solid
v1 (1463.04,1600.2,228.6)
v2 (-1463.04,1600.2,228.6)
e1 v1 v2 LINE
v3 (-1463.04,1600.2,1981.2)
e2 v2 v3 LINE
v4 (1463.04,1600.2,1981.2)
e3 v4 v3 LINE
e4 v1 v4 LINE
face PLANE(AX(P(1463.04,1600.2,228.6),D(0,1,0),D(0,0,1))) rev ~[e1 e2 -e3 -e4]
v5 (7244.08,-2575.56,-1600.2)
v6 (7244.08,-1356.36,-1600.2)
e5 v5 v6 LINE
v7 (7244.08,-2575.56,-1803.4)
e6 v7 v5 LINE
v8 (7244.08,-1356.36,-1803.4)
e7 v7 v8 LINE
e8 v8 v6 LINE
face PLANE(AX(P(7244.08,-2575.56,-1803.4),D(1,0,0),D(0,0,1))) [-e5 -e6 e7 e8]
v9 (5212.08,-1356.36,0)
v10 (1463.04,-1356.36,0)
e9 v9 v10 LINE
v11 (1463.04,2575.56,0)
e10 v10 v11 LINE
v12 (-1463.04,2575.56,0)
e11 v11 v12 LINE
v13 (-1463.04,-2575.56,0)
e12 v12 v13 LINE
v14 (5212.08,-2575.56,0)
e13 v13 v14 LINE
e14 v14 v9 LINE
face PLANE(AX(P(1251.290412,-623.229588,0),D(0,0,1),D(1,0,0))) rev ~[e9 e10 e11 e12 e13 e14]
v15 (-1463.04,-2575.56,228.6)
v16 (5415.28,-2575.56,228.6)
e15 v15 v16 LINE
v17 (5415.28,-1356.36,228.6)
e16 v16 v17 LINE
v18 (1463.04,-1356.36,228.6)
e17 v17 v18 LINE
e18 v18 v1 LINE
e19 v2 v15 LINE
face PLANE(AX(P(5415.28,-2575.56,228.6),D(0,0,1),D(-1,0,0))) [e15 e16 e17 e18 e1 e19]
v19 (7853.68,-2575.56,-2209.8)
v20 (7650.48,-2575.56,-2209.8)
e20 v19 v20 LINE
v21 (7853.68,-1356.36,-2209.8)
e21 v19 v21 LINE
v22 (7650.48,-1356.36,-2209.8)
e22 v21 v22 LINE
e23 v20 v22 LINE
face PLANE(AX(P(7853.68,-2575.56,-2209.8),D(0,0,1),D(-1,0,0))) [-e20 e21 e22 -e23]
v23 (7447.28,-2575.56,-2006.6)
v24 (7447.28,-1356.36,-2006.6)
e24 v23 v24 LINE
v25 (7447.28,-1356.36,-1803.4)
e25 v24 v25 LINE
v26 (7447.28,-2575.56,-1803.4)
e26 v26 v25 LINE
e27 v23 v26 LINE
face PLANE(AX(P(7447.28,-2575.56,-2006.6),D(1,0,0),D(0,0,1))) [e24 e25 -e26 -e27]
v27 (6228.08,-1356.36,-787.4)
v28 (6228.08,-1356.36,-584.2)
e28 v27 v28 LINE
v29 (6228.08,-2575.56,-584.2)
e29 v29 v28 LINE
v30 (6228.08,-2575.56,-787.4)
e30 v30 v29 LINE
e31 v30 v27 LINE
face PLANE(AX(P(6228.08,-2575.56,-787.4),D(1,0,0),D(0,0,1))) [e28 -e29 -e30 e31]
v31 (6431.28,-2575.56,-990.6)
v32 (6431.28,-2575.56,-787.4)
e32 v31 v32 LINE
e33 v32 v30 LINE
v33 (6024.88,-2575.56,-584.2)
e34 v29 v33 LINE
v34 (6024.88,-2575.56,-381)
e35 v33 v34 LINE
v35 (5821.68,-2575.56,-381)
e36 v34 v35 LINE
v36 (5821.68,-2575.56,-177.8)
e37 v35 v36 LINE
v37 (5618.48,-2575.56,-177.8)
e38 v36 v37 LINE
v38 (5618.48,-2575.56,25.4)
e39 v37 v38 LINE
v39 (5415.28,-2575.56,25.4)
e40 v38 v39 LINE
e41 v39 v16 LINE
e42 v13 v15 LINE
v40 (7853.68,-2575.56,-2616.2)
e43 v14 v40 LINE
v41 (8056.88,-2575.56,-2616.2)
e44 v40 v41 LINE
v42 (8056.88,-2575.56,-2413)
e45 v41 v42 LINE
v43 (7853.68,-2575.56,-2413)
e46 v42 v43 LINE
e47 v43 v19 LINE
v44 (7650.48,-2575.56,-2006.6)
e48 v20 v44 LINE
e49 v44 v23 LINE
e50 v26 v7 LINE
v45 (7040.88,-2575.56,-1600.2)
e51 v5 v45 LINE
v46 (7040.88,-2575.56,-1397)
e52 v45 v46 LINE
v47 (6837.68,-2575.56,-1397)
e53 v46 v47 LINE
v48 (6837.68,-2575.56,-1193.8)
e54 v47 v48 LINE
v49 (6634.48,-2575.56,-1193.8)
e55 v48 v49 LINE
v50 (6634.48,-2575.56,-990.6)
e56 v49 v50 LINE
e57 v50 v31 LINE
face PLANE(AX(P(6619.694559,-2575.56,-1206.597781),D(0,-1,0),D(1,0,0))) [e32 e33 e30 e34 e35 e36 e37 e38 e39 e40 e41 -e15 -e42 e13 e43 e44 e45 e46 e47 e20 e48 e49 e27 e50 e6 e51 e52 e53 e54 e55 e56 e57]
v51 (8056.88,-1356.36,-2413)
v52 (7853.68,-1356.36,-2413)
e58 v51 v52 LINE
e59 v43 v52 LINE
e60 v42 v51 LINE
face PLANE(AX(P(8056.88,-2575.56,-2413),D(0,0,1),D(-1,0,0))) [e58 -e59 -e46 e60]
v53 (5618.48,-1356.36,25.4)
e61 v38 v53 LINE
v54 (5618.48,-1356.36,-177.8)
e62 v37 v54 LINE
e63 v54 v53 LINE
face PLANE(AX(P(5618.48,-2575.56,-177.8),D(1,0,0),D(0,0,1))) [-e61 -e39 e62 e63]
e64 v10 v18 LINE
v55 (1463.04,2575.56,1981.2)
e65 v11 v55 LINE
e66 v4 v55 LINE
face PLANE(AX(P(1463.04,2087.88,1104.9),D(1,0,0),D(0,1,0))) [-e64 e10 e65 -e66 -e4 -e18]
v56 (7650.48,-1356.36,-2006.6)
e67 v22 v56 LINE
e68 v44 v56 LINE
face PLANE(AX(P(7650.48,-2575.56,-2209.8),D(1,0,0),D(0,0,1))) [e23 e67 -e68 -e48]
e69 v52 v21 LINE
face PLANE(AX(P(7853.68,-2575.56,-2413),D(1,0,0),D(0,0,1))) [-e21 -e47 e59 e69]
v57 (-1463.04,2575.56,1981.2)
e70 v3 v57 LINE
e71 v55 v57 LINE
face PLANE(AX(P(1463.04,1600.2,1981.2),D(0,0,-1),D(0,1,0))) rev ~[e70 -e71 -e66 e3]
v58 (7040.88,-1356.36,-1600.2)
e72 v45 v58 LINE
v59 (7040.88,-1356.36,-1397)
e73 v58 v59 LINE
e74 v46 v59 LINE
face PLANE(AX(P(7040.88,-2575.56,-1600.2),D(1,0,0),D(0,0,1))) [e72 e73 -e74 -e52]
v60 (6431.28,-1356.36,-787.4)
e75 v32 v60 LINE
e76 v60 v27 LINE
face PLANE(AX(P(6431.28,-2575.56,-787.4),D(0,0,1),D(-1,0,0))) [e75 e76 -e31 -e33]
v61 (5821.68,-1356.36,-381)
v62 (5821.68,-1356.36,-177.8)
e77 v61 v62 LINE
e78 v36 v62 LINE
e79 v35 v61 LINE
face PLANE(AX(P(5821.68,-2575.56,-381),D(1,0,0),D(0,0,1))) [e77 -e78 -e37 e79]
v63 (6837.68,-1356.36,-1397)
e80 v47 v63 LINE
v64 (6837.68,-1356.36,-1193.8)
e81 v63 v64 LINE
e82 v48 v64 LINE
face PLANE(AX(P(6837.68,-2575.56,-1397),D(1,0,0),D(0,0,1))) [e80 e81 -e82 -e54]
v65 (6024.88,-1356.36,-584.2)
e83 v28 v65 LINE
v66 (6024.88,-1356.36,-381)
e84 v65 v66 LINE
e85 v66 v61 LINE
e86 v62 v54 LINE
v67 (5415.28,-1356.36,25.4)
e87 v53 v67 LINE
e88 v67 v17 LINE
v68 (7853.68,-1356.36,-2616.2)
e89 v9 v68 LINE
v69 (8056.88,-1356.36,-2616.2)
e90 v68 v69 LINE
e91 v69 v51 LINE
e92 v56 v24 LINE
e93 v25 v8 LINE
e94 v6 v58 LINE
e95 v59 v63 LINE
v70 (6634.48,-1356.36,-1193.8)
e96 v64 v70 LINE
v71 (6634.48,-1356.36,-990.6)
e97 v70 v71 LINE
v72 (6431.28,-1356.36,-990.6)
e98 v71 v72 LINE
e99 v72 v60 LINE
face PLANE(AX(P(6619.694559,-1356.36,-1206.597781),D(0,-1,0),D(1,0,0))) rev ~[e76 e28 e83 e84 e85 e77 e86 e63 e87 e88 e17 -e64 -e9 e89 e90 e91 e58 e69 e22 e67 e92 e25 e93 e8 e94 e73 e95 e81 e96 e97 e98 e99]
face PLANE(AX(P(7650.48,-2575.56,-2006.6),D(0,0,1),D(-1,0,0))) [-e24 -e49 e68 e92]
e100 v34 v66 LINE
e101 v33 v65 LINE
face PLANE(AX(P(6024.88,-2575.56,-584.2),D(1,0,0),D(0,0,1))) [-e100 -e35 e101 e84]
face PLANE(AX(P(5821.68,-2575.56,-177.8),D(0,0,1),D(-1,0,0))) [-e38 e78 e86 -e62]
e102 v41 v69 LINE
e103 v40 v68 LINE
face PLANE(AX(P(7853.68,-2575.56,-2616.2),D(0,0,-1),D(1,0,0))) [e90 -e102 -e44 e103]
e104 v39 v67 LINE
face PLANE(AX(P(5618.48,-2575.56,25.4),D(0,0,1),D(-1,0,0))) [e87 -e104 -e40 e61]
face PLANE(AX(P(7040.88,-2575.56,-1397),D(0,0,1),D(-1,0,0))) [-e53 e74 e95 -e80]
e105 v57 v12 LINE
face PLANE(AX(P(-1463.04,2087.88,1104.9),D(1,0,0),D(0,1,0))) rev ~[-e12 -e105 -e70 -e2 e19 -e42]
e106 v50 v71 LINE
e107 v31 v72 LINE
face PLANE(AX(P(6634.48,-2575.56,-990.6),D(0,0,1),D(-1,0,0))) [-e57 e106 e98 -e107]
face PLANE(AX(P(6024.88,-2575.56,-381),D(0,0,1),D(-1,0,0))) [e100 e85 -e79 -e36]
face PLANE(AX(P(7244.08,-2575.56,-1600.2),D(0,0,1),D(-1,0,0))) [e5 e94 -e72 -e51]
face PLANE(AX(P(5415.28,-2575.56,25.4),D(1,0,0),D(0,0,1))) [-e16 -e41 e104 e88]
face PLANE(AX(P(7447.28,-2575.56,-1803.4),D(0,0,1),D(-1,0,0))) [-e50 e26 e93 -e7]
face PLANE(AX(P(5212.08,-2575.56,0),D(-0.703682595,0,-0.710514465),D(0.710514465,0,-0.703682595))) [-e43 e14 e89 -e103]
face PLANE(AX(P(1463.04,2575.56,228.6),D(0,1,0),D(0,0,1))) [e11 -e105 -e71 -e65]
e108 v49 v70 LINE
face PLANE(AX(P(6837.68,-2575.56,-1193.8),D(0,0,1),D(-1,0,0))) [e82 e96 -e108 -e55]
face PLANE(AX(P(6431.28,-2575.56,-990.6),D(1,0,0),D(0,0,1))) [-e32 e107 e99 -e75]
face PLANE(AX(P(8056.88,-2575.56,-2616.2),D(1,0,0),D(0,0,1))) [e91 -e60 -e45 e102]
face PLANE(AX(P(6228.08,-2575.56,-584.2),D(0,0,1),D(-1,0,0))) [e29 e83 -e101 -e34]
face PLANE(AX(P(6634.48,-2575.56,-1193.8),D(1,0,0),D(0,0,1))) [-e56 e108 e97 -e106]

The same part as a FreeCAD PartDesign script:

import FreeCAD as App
import Part
import Sketcher
from FreeCAD import Vector
Q = App.Units.Quantity


def add_polygon(sketch, points):
    """Adds a closed chain of lines whose ends are joined by coincident constraints."""
    first, n = sketch.GeometryCount, len(points)
    for a, b in zip(points, points[1:] + points[:1]):
        sketch.addGeometry(Part.LineSegment(App.Vector(*a, 0), App.Vector(*b, 0)), False)
    for i in range(n):
        sketch.addConstraint(Sketcher.Constraint("Coincident", first + i, 2, first + (i + 1) % n, 1))

doc = App.newDocument("Part")
body = doc.addObject("PartDesign::Body", "Body")

sketch1 = body.newObject("Sketcher::SketchObject", "Sketch")
sketch1.AttachmentSupport = (doc.getObject("XY_Plane"), [""])
sketch1.MapMode = "FlatFace"
add_polygon(sketch1, [(-1463, -2576), (5212, -2576), (5212, -1356), (1463, -1356), (1463, 2576), (-1463, 2576)])
sketch1.addConstraint(Sketcher.Constraint("Horizontal", 0))
sketch1.addConstraint(Sketcher.Constraint("Vertical", 1))
sketch1.addConstraint(Sketcher.Constraint("Horizontal", 2))
sketch1.addConstraint(Sketcher.Constraint("Vertical", 3))
sketch1.addConstraint(Sketcher.Constraint("Horizontal", 4))
sketch1.addConstraint(Sketcher.Constraint("Vertical", 5))
sketch1.addConstraint(Sketcher.Constraint("Symmetric", 3, 2, 5, 2, -1, 1))
sketch1.addConstraint(Sketcher.Constraint("DistanceY", 1, 1, 1, 2, Q("48 in")))
sketch1.addConstraint(Sketcher.Constraint("DistanceX", 0, 1, 0, 2, Q("262.8 in")))
sketch1.addConstraint(Sketcher.Constraint("DistanceX", 2, 2, 2, 1, Q("147.6 in")))
sketch1.addConstraint(Sketcher.Constraint("DistanceY", 3, 1, 3, 2, Q("154.8 in")))
pad1 = body.newObject("PartDesign::Pad", "Pad")
pad1.Profile = sketch1
pad1.Length = Q("9 in")

sketch2 = body.newObject("Sketcher::SketchObject", "Sketch001")
sketch2.AttachmentSupport = (doc.getObject("XZ_Plane"), [""])
sketch2.MapMode = "FlatFace"
sketch2.AttachmentOffset = App.Placement(Vector(0, 0, 101.4 * 25.4), App.Rotation())
add_polygon(sketch2, [(5415, 229), (5212, 229), (5212, 0), (7854, -2616), (8057, -2616), (8057, -2413), (7854, -2413), (7854, -2210), (7650, -2210), (7650, -2007), (7447, -2007), (7447, -1803), (7244, -1803), (7244, -1600), (7041, -1600), (7041, -1397), (6838, -1397), (6838, -1194), (6634, -1194), (6634, -991), (6431, -991), (6431, -787), (6228, -787), (6228, -584), (6025, -584), (6025, -381), (5822, -381), (5822, -178), (5618, -178), (5618, 25), (5415, 25)])
sketch2.addConstraint(Sketcher.Constraint("Horizontal", 0))
sketch2.addConstraint(Sketcher.Constraint("Vertical", 1))
sketch2.addConstraint(Sketcher.Constraint("Horizontal", 3))
sketch2.addConstraint(Sketcher.Constraint("Vertical", 4))
sketch2.addConstraint(Sketcher.Constraint("Horizontal", 5))
sketch2.addConstraint(Sketcher.Constraint("Vertical", 6))
sketch2.addConstraint(Sketcher.Constraint("Horizontal", 7))
sketch2.addConstraint(Sketcher.Constraint("Vertical", 8))
sketch2.addConstraint(Sketcher.Constraint("Horizontal", 9))
sketch2.addConstraint(Sketcher.Constraint("Vertical", 10))
sketch2.addConstraint(Sketcher.Constraint("Horizontal", 11))
sketch2.addConstraint(Sketcher.Constraint("Vertical", 12))
sketch2.addConstraint(Sketcher.Constraint("Horizontal", 13))
sketch2.addConstraint(Sketcher.Constraint("Vertical", 14))
sketch2.addConstraint(Sketcher.Constraint("Horizontal", 15))
sketch2.addConstraint(Sketcher.Constraint("Vertical", 16))
sketch2.addConstraint(Sketcher.Constraint("Horizontal", 17))
sketch2.addConstraint(Sketcher.Constraint("Vertical", 18))
sketch2.addConstraint(Sketcher.Constraint("Horizontal", 19))
sketch2.addConstraint(Sketcher.Constraint("Vertical", 20))
sketch2.addConstraint(Sketcher.Constraint("Horizontal", 21))
sketch2.addConstraint(Sketcher.Constraint("Vertical", 22))
sketch2.addConstraint(Sketcher.Constraint("Horizontal", 23))
sketch2.addConstraint(Sketcher.Constraint("Vertical", 24))
sketch2.addConstraint(Sketcher.Constraint("Horizontal", 25))
sketch2.addConstraint(Sketcher.Constraint("Vertical", 26))
sketch2.addConstraint(Sketcher.Constraint("Horizontal", 27))
sketch2.addConstraint(Sketcher.Constraint("Vertical", 28))
sketch2.addConstraint(Sketcher.Constraint("Horizontal", 29))
sketch2.addConstraint(Sketcher.Constraint("Vertical", 30))
sketch2.addConstraint(Sketcher.Constraint("PointOnObject", 1, 2, -1))
sketch2.addConstraint(Sketcher.Constraint("Vertical", 2, 2, 5, 2))
sketch2.addConstraint(Sketcher.Constraint("Equal", 0, 3))
sketch2.addConstraint(Sketcher.Constraint("Equal", 5, 7))
sketch2.addConstraint(Sketcher.Constraint("Equal", 7, 9))
sketch2.addConstraint(Sketcher.Constraint("Equal", 9, 11))
sketch2.addConstraint(Sketcher.Constraint("Equal", 11, 13))
sketch2.addConstraint(Sketcher.Constraint("Equal", 13, 15))
sketch2.addConstraint(Sketcher.Constraint("Equal", 15, 17))
sketch2.addConstraint(Sketcher.Constraint("Equal", 17, 19))
sketch2.addConstraint(Sketcher.Constraint("Equal", 19, 21))
sketch2.addConstraint(Sketcher.Constraint("Equal", 21, 23))
sketch2.addConstraint(Sketcher.Constraint("Equal", 23, 25))
sketch2.addConstraint(Sketcher.Constraint("Equal", 25, 27))
sketch2.addConstraint(Sketcher.Constraint("Equal", 27, 29))
sketch2.addConstraint(Sketcher.Constraint("Equal", 29, 4))
sketch2.addConstraint(Sketcher.Constraint("Equal", 4, 6))
sketch2.addConstraint(Sketcher.Constraint("Equal", 6, 8))
sketch2.addConstraint(Sketcher.Constraint("Equal", 8, 10))
sketch2.addConstraint(Sketcher.Constraint("Equal", 10, 12))
sketch2.addConstraint(Sketcher.Constraint("Equal", 12, 14))
sketch2.addConstraint(Sketcher.Constraint("Equal", 14, 16))
sketch2.addConstraint(Sketcher.Constraint("Equal", 16, 18))
sketch2.addConstraint(Sketcher.Constraint("Equal", 18, 20))
sketch2.addConstraint(Sketcher.Constraint("Equal", 20, 22))
sketch2.addConstraint(Sketcher.Constraint("Equal", 22, 24))
sketch2.addConstraint(Sketcher.Constraint("Equal", 24, 26))
sketch2.addConstraint(Sketcher.Constraint("Equal", 26, 28))
sketch2.addConstraint(Sketcher.Constraint("Equal", 28, 30))
sketch2.addConstraint(Sketcher.Constraint("DistanceX", 0, 2, 0, 1, Q("8 in")))
sketch2.addConstraint(Sketcher.Constraint("DistanceY", 1, 2, 1, 1, Q("9 in")))
sketch2.addConstraint(Sketcher.Constraint("DistanceX", -1, 1, 0, 2, Q("205.2 in")))
pad2 = body.newObject("PartDesign::Pad", "Pad001")
pad2.Profile = sketch2
pad2.Length = Q("48 in")
pad2.Reversed = True

sketch3 = body.newObject("Sketcher::SketchObject", "Sketch002")
sketch3.AttachmentSupport = (doc.getObject("YZ_Plane"), [""])
sketch3.MapMode = "FlatFace"
sketch3.AttachmentOffset = App.Placement(Vector(0, 0, 57.6 * 25.4), App.Rotation())
add_polygon(sketch3, [(1600, 1981), (1600, 229), (2576, 229), (2576, 1981)])
sketch3.addConstraint(Sketcher.Constraint("Vertical", 0))
sketch3.addConstraint(Sketcher.Constraint("Horizontal", 1))
sketch3.addConstraint(Sketcher.Constraint("Vertical", 2))
sketch3.addConstraint(Sketcher.Constraint("Horizontal", 3))
sketch3.addConstraint(Sketcher.Constraint("DistanceY", 0, 2, 0, 1, Q("69 in")))
sketch3.addConstraint(Sketcher.Constraint("DistanceX", 1, 1, 1, 2, Q("38.4 in")))
sketch3.addConstraint(Sketcher.Constraint("DistanceX", -1, 1, 0, 2, Q("63 in")))
sketch3.addConstraint(Sketcher.Constraint("DistanceY", -1, 1, 0, 2, Q("9 in")))
pad3 = body.newObject("PartDesign::Pad", "Pad002")
pad3.Profile = sketch3
pad3.Length = Q("115.2 in")
pad3.Reversed = True

doc.recompute()
